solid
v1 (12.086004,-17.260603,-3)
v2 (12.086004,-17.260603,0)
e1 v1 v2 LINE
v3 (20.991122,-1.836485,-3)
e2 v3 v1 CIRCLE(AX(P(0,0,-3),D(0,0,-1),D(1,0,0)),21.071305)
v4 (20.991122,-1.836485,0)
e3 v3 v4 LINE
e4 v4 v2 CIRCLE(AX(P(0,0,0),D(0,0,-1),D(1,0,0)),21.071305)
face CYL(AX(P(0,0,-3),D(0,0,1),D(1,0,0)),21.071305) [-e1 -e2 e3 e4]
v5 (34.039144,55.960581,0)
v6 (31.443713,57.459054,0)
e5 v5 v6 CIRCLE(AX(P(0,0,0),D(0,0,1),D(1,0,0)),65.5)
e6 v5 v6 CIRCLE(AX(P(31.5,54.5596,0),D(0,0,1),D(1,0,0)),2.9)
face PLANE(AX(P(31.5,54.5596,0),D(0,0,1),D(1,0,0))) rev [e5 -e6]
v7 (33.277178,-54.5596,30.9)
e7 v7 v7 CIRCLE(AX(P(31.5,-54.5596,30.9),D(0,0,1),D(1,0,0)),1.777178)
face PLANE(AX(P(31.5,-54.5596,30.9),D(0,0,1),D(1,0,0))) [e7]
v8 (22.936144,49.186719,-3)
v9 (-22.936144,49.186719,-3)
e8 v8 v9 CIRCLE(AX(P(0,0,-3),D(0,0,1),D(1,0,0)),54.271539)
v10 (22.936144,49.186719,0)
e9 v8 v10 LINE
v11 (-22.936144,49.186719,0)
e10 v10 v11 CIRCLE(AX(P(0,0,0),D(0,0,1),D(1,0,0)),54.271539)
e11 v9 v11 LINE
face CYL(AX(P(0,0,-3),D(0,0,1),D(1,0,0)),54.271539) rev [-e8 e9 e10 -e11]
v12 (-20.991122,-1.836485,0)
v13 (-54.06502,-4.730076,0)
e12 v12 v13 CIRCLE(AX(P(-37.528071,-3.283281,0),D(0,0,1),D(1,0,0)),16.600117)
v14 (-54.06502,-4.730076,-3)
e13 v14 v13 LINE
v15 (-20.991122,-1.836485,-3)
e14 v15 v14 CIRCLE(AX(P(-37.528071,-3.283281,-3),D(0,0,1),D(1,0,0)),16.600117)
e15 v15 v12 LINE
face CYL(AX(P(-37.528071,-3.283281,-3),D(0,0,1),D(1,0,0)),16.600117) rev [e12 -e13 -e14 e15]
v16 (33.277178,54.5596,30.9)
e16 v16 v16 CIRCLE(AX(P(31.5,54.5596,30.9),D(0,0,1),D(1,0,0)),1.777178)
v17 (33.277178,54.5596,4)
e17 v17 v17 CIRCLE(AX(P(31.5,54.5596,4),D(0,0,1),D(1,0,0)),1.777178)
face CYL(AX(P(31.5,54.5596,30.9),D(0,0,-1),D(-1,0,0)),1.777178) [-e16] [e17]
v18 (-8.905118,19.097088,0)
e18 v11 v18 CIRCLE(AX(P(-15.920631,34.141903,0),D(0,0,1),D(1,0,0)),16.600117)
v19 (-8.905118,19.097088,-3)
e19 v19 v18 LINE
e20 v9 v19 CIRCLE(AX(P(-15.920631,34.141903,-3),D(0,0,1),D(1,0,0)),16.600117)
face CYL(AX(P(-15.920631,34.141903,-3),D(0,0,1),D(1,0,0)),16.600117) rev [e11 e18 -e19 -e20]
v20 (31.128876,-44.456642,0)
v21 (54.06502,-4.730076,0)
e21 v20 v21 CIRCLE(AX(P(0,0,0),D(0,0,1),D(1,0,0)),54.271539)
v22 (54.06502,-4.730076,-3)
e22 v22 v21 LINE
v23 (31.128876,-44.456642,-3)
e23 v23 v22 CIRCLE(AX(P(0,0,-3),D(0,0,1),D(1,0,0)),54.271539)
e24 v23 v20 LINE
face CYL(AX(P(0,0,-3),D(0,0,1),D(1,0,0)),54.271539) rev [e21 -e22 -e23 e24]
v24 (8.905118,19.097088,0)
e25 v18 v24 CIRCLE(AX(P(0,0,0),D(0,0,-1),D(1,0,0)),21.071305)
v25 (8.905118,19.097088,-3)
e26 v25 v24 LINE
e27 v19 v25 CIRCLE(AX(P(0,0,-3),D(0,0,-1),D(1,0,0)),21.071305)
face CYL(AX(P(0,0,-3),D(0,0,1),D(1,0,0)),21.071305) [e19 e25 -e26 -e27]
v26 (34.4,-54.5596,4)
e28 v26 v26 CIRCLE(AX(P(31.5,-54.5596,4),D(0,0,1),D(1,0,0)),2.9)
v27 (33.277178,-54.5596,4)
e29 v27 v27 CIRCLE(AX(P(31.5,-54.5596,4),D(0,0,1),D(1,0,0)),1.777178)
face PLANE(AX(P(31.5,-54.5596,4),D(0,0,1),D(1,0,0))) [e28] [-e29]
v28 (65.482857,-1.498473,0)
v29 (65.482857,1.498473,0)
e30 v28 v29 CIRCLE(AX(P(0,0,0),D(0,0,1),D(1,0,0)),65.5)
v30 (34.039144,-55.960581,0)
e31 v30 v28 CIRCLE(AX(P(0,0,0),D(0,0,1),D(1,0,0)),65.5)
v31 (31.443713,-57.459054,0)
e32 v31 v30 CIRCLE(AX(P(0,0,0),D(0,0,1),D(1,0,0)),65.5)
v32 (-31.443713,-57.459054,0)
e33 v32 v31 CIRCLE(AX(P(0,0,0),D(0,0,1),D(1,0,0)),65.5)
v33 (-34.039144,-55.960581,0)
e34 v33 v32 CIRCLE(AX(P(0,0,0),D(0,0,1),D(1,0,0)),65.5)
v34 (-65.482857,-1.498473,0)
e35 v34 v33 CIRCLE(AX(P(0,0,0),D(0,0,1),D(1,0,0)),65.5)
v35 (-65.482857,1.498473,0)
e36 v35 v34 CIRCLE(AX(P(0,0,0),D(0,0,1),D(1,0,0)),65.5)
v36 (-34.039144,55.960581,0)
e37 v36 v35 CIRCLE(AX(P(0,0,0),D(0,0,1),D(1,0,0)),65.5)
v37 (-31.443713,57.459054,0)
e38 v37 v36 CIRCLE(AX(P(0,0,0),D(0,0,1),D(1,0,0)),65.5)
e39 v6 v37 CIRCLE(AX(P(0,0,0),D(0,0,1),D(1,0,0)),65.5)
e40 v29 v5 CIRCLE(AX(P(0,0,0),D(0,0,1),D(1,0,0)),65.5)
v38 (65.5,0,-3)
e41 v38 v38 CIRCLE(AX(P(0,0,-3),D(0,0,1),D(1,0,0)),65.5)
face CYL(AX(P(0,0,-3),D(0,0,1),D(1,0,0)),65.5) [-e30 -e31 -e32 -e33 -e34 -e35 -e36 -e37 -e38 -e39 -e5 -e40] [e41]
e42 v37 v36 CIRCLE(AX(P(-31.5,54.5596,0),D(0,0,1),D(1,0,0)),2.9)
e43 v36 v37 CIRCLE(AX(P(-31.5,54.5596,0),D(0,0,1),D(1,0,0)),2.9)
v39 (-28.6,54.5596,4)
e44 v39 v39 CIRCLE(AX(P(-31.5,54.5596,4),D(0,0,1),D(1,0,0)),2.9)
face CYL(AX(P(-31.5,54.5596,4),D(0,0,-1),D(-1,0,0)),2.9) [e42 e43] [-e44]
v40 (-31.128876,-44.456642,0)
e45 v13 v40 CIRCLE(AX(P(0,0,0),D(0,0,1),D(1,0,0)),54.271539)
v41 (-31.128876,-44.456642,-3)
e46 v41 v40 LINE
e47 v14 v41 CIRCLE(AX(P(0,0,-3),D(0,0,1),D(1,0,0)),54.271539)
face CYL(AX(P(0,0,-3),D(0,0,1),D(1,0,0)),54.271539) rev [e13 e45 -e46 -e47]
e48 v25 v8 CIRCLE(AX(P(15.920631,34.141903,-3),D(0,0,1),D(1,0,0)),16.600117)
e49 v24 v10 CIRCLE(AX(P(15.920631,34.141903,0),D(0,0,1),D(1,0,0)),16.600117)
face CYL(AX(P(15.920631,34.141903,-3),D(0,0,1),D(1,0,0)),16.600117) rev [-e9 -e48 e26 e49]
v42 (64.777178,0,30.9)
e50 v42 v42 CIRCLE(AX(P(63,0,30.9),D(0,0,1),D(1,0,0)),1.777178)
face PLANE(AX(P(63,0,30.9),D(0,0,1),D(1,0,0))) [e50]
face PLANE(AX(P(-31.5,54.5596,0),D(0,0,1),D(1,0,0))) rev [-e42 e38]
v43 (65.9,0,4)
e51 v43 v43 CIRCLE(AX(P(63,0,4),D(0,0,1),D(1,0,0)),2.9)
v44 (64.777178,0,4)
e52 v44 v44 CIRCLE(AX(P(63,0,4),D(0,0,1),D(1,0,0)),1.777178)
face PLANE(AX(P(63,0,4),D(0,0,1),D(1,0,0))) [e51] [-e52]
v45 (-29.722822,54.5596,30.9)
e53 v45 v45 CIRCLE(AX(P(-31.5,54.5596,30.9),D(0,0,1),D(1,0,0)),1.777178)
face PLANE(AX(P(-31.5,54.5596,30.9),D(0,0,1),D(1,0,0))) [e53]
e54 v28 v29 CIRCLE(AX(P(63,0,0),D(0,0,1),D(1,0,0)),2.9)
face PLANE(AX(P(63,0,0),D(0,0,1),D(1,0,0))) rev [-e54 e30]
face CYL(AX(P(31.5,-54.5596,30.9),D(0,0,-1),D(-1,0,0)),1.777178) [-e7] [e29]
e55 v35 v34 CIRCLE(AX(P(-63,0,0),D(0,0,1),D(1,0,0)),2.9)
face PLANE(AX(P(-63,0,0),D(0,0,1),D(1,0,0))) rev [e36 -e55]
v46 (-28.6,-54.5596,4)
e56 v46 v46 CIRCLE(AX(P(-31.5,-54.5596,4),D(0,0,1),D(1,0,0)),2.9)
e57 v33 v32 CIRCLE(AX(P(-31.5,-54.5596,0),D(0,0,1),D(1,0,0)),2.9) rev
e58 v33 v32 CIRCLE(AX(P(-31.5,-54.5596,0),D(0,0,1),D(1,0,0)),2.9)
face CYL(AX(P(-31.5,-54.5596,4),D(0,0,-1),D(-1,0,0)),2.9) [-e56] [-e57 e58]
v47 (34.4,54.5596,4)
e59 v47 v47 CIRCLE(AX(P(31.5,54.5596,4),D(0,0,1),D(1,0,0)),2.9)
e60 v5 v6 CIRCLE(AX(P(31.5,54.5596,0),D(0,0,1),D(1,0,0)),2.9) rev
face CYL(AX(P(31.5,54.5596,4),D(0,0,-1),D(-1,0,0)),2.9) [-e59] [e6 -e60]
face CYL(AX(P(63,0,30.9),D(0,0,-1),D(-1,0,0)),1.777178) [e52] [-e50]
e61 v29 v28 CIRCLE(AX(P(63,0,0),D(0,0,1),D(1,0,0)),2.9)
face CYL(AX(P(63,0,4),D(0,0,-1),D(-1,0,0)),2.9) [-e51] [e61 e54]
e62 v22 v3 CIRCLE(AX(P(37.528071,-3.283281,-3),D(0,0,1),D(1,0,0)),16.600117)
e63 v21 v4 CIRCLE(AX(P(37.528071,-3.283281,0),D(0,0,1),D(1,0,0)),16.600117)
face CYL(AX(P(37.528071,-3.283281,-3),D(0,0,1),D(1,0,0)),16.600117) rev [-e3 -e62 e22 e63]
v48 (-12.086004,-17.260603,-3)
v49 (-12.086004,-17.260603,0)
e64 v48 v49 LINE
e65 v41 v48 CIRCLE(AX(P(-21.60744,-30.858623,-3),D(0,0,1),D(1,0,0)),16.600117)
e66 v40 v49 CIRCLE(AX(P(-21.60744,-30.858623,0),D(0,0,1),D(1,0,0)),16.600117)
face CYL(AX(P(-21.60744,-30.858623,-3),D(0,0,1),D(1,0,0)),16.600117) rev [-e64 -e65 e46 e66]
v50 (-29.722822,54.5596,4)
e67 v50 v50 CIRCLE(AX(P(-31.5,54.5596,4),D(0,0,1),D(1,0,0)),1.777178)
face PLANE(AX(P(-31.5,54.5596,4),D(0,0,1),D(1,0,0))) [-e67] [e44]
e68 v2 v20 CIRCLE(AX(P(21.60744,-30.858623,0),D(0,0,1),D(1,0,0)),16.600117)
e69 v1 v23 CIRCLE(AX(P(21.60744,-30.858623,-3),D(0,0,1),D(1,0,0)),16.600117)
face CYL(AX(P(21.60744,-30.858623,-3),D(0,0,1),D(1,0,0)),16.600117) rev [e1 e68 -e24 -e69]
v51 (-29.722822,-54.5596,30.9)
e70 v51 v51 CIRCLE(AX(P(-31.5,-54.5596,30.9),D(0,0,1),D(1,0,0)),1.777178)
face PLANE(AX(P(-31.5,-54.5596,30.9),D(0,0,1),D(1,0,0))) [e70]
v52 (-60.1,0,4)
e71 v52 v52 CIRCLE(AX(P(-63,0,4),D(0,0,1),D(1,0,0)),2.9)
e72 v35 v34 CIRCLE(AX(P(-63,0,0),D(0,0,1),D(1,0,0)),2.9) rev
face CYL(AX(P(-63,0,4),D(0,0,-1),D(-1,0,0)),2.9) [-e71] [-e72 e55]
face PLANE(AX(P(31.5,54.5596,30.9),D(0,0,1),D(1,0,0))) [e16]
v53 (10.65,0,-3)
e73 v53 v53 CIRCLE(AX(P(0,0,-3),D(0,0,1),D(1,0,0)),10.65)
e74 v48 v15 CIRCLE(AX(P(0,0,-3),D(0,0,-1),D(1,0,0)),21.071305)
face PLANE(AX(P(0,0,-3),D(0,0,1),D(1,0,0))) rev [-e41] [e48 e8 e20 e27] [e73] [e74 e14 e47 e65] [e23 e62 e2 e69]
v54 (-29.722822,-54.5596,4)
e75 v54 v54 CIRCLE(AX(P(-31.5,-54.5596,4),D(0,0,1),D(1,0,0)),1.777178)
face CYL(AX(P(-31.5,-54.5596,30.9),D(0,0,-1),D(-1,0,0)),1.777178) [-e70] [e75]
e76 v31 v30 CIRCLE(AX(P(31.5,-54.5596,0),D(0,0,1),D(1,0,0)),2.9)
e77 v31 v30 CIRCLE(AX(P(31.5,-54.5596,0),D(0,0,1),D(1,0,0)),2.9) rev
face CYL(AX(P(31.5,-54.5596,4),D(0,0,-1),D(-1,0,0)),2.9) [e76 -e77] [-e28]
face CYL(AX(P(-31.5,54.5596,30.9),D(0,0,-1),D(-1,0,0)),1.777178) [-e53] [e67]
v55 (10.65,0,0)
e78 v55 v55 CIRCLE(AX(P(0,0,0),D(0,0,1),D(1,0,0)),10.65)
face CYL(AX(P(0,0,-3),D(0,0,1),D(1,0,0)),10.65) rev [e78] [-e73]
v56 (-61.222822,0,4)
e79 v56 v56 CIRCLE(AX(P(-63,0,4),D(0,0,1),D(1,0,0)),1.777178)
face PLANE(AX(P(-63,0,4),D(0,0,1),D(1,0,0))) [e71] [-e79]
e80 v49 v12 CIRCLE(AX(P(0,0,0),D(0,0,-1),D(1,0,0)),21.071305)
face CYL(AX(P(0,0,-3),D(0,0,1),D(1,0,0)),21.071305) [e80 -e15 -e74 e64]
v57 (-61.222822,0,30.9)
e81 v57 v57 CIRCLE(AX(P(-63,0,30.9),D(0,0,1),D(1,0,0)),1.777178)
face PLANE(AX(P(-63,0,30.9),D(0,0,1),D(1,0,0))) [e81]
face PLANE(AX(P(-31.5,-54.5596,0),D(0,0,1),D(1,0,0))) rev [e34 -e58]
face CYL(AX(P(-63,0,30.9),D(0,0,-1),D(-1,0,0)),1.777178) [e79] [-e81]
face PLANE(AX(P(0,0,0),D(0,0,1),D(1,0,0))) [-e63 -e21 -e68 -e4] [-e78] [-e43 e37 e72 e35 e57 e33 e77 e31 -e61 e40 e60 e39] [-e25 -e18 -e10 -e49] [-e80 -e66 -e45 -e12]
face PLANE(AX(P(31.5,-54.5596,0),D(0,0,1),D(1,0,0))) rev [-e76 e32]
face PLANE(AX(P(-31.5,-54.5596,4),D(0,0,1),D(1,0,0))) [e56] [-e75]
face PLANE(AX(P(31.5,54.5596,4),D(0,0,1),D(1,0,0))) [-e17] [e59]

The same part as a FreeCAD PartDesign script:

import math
import FreeCAD as App
import Part
import Sketcher
from FreeCAD import Vector

doc = App.newDocument("Part")
body = doc.addObject("PartDesign::Body", "Body")

# Sketch on XY plane
sketch1 = doc.addObject("Sketcher::SketchObject", "Sketch")
body.addObject(sketch1)
sketch1.AttachmentSupport = (doc.XY_Plane, [""])
sketch1.MapMode = "FlatFace"
sketch1.addGeometry(Part.Circle(Vector(0, 0, 0), Vector(0, 0, 1), 66), False)
sketch1.addConstraint(Sketcher.Constraint("Coincident", 0, 3, -1, 1))
sketch1.addConstraint(Sketcher.Constraint("Diameter", 0, 131.0))
pad1 = doc.addObject("PartDesign::Pad", "Pad")
body.addObject(pad1)
pad1.Profile = sketch1
pad1.Length = 3
pad1.Reversed = True

# Sketch on XY plane
sketch2 = doc.addObject("Sketcher::SketchObject", "Sketch001")
body.addObject(sketch2)
sketch2.AttachmentSupport = (doc.XY_Plane, [""])
sketch2.MapMode = "FlatFace"
sketch2.addGeometry(Part.Circle(Vector(-63, 0, 0), Vector(0, 0, 1), 2.9), False)
sketch2.addGeometry(Part.Circle(Vector(-31.5, 54.6, 0), Vector(0, 0, 1), 2.9), False)
sketch2.addGeometry(Part.Circle(Vector(31.5, 54.6, 0), Vector(0, 0, 1), 2.9), False)
sketch2.addGeometry(Part.Circle(Vector(63, 0, 0), Vector(0, 0, 1), 2.9), False)
sketch2.addGeometry(Part.Circle(Vector(31.5, -54.6, 0), Vector(0, 0, 1), 2.9), False)
sketch2.addGeometry(Part.Circle(Vector(-31.5, -54.6, 0), Vector(0, 0, 1), 2.9), False)
sketch2.addConstraint(Sketcher.Constraint("Equal", 0, 1))
sketch2.addConstraint(Sketcher.Constraint("Equal", 1, 2))
sketch2.addConstraint(Sketcher.Constraint("Equal", 2, 3))
sketch2.addConstraint(Sketcher.Constraint("Equal", 3, 4))
sketch2.addConstraint(Sketcher.Constraint("Equal", 4, 5))
sketch2.addConstraint(Sketcher.Constraint("Symmetric", 0, 3, 3, 3, -1, 1))
sketch2.addConstraint(Sketcher.Constraint("Symmetric", 1, 3, 4, 3, -1, 1))
sketch2.addConstraint(Sketcher.Constraint("Symmetric", 2, 3, 5, 3, -1, 1))
sketch2.addConstraint(Sketcher.Constraint("Symmetric", 1, 3, 2, 3, -2))
sketch2.addConstraint(Sketcher.Constraint("PointOnObject", 0, 3, -1))
sketch2.addConstraint(Sketcher.Constraint("Diameter", 0, 5.8))
sketch2.addConstraint(Sketcher.Constraint("DistanceX", 0, 3, -1, 1, 63.0))
sketch2.addConstraint(Sketcher.Constraint("DistanceX", 1, 3, 2, 3, 63.0))
sketch2.addConstraint(Sketcher.Constraint("DistanceY", -1, 1, 1, 3, 54.5596))
pad2 = doc.addObject("PartDesign::Pad", "Pad001")
body.addObject(pad2)
pad2.Profile = sketch2
pad2.Length = 4

# Sketch on XY plane
sketch3 = doc.addObject("Sketcher::SketchObject", "Sketch002")
body.addObject(sketch3)
sketch3.AttachmentSupport = (doc.XY_Plane, [""])
sketch3.MapMode = "FlatFace"
sketch3.addGeometry(Part.Circle(Vector(0, 0, 0), Vector(0, 0, 1), 11), False)
sketch3.addConstraint(Sketcher.Constraint("Coincident", 0, 3, -1, 1))
sketch3.addConstraint(Sketcher.Constraint("Diameter", 0, 21.3))
pocket1 = doc.addObject("PartDesign::Pocket", "Pocket")
body.addObject(pocket1)
pocket1.Profile = sketch3
pocket1.Type = "ThroughAll"

# Sketch on XY plane
sketch4 = doc.addObject("Sketcher::SketchObject", "Sketch003")
body.addObject(sketch4)
sketch4.AttachmentSupport = (doc.XY_Plane, [""])
sketch4.MapMode = "FlatFace"
sketch4.AttachmentOffset = App.Placement(Vector(0, 0, 4), App.Rotation())
sketch4.addGeometry(Part.Circle(Vector(-31.5, 54.6, 0), Vector(0, 0, 1), 1.8), False)
sketch4.addGeometry(Part.Circle(Vector(31.5, 54.6, 0), Vector(0, 0, 1), 1.8), False)
sketch4.addGeometry(Part.Circle(Vector(63, 0, 0), Vector(0, 0, 1), 1.8), False)
sketch4.addGeometry(Part.Circle(Vector(31.5, -54.6, 0), Vector(0, 0, 1), 1.8), False)
sketch4.addGeometry(Part.Circle(Vector(-31.5, -54.6, 0), Vector(0, 0, 1), 1.8), False)
sketch4.addGeometry(Part.Circle(Vector(-63, 0, 0), Vector(0, 0, 1), 1.8), False)
sketch4.addConstraint(Sketcher.Constraint("Equal", 0, 1))
sketch4.addConstraint(Sketcher.Constraint("Equal", 1, 2))
sketch4.addConstraint(Sketcher.Constraint("Equal", 2, 3))
sketch4.addConstraint(Sketcher.Constraint("Equal", 3, 4))
sketch4.addConstraint(Sketcher.Constraint("Equal", 4, 5))
sketch4.addConstraint(Sketcher.Constraint("Symmetric", 0, 3, 3, 3, -1, 1))
sketch4.addConstraint(Sketcher.Constraint("Symmetric", 1, 3, 4, 3, -1, 1))
sketch4.addConstraint(Sketcher.Constraint("Symmetric", 2, 3, 5, 3, -1, 1))
sketch4.addConstraint(Sketcher.Constraint("Symmetric", 0, 3, 1, 3, -2))
sketch4.addConstraint(Sketcher.Constraint("PointOnObject", 2, 3, -1))
sketch4.addConstraint(Sketcher.Constraint("DistanceX", -1, 1, 2, 3, 63.0))
sketch4.addConstraint(Sketcher.Constraint("DistanceX", 0, 3, 1, 3, 63.0))
sketch4.addConstraint(Sketcher.Constraint("Diameter", 0, 3.554355))
sketch4.addConstraint(Sketcher.Constraint("DistanceY", -1, 1, 0, 3, 54.5596))
pad3 = doc.addObject("PartDesign::Pad", "Pad002")
body.addObject(pad3)
pad3.Profile = sketch4
pad3.Length = 26.9

# Sketch on XY plane
sketch5 = doc.addObject("Sketcher::SketchObject", "Sketch004")
body.addObject(sketch5)
sketch5.AttachmentSupport = (doc.XY_Plane, [""])
sketch5.MapMode = "FlatFace"
sketch5.addGeometry(Part.ArcOfCircle(Part.Circle(Vector(0, 0, 0), Vector(0, 0, 1), 54), math.radians(65), math.radians(115)), False)
sketch5.addGeometry(Part.ArcOfCircle(Part.Circle(Vector(-16, 34, 0), Vector(0, 0, 1), 17), math.radians(115), math.radians(295)), False)
sketch5.addGeometry(Part.ArcOfCircle(Part.Circle(Vector(0, 0, 0), Vector(0, 0, 1), 21), math.radians(65), math.radians(115)), False)
sketch5.addGeometry(Part.ArcOfCircle(Part.Circle(Vector(16, 34, 0), Vector(0, 0, 1), 17), math.radians(-115), math.radians(65)), False)
sketch5.addGeometry(Part.ArcOfCircle(Part.Circle(Vector(0, 0, 0), Vector(0, 0, 1), 21), math.radians(-55), math.radians(-5)), False)
sketch5.addGeometry(Part.ArcOfCircle(Part.Circle(Vector(22, -31, 0), Vector(0, 0, 1), 17), math.radians(125), math.radians(305)), False)
sketch5.addGeometry(Part.ArcOfCircle(Part.Circle(Vector(0, 0, 0), Vector(0, 0, 1), 54), math.radians(-55), math.radians(-5)), False)
sketch5.addGeometry(Part.ArcOfCircle(Part.Circle(Vector(38, -3, 0), Vector(0, 0, 1), 17), math.radians(-5), math.radians(175)), False)
sketch5.addGeometry(Part.ArcOfCircle(Part.Circle(Vector(0, 0, 0), Vector(0, 0, 1), 21), math.radians(-175), math.radians(-125)), False)
sketch5.addGeometry(Part.ArcOfCircle(Part.Circle(Vector(-38, -3, 0), Vector(0, 0, 1), 17), math.radians(5), math.radians(185)), False)
sketch5.addGeometry(Part.ArcOfCircle(Part.Circle(Vector(0, 0, 0), Vector(0, 0, 1), 54), math.radians(-175), math.radians(-125)), False)
sketch5.addGeometry(Part.ArcOfCircle(Part.Circle(Vector(-22, -31, 0), Vector(0, 0, 1), 17), math.radians(-125), math.radians(55)), False)
sketch5.addConstraint(Sketcher.Constraint("Tangent", 0, 2, 1, 1))
sketch5.addConstraint(Sketcher.Constraint("Tangent", 1, 2, 2, 2))
sketch5.addConstraint(Sketcher.Constraint("Tangent", 2, 1, 3, 1))
sketch5.addConstraint(Sketcher.Constraint("Tangent", 3, 2, 0, 1))
sketch5.addConstraint(Sketcher.Constraint("Tangent", 4, 1, 5, 1))
sketch5.addConstraint(Sketcher.Constraint("Tangent", 5, 2, 6, 1))
sketch5.addConstraint(Sketcher.Constraint("Tangent", 6, 2, 7, 1))
sketch5.addConstraint(Sketcher.Constraint("Tangent", 7, 2, 4, 2))
sketch5.addConstraint(Sketcher.Constraint("Tangent", 8, 1, 9, 1))
sketch5.addConstraint(Sketcher.Constraint("Tangent", 9, 2, 10, 1))
sketch5.addConstraint(Sketcher.Constraint("Tangent", 10, 2, 11, 1))
sketch5.addConstraint(Sketcher.Constraint("Tangent", 11, 2, 8, 2))
sketch5.addConstraint(Sketcher.Constraint("Coincident", 0, 3, -1, 1))
sketch5.addConstraint(Sketcher.Constraint("Coincident", 2, 3, -1, 1))
sketch5.addConstraint(Sketcher.Constraint("Coincident", 4, 3, -1, 1))
sketch5.addConstraint(Sketcher.Constraint("Coincident", 6, 3, -1, 1))
sketch5.addConstraint(Sketcher.Constraint("Coincident", 8, 3, -1, 1))
sketch5.addConstraint(Sketcher.Constraint("Coincident", 10, 3, -1, 1))
sketch5.addConstraint(Sketcher.Constraint("Equal", 2, 4))
sketch5.addConstraint(Sketcher.Constraint("Equal", 3, 5))
sketch5.addConstraint(Sketcher.Constraint("Equal", 4, 8))
sketch5.addConstraint(Sketcher.Constraint("Equal", 7, 9))
sketch5.addConstraint(Sketcher.Constraint("Horizontal", 1, 3, 3, 3))
sketch5.addConstraint(Sketcher.Constraint("Horizontal", 7, 3, 9, 3))
sketch5.addConstraint(Sketcher.Constraint("Horizontal", 5, 3, 11, 3))
sketch5.addConstraint(Sketcher.Constraint("Radius", 0, 54.271539))
sketch5.addConstraint(Sketcher.Constraint("Radius", 1, 16.600117))
sketch5.addConstraint(Sketcher.Constraint("DistanceX", 2, 1, 6, 2, 45.159901))
sketch5.addConstraint(Sketcher.Constraint("DistanceX", 1, 3, -1, 1, 15.920631))
sketch5.addConstraint(Sketcher.Constraint("DistanceX", -1, 1, 5, 3, 21.60744))
pocket2 = doc.addObject("PartDesign::Pocket", "Pocket001")
body.addObject(pocket2)
pocket2.Profile = sketch5
pocket2.Type = "ThroughAll"

doc.recompute()
